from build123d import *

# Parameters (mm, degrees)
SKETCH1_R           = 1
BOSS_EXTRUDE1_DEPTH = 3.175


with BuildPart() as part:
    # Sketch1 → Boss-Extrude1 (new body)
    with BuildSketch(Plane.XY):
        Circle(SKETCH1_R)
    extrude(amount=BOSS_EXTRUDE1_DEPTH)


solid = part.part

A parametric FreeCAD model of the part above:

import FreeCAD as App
import Part
import Sketcher

V = App.Vector
Q = App.Units.Quantity

doc = App.newDocument("Part")
body = doc.addObject("PartDesign::Body", "Body")

sketch1 = body.newObject("Sketcher::SketchObject", "Sketch")
sketch1.AttachmentSupport = (doc.getObject("XY_Plane"), [""])
sketch1.MapMode = "FlatFace"
sketch1.addGeometry(Part.Circle(V(0, 0, 0), V(0, 0, 1), 1), False)
sketch1.addConstraint(Sketcher.Constraint("Coincident", 0, 3, -1, 1))
sketch1.addConstraint(Sketcher.Constraint("Diameter", 0, Q("2 mm")))
pad1 = body.newObject("PartDesign::Pad", "Pad")
pad1.Profile = sketch1
pad1.Length = 3.175

doc.recompute()
